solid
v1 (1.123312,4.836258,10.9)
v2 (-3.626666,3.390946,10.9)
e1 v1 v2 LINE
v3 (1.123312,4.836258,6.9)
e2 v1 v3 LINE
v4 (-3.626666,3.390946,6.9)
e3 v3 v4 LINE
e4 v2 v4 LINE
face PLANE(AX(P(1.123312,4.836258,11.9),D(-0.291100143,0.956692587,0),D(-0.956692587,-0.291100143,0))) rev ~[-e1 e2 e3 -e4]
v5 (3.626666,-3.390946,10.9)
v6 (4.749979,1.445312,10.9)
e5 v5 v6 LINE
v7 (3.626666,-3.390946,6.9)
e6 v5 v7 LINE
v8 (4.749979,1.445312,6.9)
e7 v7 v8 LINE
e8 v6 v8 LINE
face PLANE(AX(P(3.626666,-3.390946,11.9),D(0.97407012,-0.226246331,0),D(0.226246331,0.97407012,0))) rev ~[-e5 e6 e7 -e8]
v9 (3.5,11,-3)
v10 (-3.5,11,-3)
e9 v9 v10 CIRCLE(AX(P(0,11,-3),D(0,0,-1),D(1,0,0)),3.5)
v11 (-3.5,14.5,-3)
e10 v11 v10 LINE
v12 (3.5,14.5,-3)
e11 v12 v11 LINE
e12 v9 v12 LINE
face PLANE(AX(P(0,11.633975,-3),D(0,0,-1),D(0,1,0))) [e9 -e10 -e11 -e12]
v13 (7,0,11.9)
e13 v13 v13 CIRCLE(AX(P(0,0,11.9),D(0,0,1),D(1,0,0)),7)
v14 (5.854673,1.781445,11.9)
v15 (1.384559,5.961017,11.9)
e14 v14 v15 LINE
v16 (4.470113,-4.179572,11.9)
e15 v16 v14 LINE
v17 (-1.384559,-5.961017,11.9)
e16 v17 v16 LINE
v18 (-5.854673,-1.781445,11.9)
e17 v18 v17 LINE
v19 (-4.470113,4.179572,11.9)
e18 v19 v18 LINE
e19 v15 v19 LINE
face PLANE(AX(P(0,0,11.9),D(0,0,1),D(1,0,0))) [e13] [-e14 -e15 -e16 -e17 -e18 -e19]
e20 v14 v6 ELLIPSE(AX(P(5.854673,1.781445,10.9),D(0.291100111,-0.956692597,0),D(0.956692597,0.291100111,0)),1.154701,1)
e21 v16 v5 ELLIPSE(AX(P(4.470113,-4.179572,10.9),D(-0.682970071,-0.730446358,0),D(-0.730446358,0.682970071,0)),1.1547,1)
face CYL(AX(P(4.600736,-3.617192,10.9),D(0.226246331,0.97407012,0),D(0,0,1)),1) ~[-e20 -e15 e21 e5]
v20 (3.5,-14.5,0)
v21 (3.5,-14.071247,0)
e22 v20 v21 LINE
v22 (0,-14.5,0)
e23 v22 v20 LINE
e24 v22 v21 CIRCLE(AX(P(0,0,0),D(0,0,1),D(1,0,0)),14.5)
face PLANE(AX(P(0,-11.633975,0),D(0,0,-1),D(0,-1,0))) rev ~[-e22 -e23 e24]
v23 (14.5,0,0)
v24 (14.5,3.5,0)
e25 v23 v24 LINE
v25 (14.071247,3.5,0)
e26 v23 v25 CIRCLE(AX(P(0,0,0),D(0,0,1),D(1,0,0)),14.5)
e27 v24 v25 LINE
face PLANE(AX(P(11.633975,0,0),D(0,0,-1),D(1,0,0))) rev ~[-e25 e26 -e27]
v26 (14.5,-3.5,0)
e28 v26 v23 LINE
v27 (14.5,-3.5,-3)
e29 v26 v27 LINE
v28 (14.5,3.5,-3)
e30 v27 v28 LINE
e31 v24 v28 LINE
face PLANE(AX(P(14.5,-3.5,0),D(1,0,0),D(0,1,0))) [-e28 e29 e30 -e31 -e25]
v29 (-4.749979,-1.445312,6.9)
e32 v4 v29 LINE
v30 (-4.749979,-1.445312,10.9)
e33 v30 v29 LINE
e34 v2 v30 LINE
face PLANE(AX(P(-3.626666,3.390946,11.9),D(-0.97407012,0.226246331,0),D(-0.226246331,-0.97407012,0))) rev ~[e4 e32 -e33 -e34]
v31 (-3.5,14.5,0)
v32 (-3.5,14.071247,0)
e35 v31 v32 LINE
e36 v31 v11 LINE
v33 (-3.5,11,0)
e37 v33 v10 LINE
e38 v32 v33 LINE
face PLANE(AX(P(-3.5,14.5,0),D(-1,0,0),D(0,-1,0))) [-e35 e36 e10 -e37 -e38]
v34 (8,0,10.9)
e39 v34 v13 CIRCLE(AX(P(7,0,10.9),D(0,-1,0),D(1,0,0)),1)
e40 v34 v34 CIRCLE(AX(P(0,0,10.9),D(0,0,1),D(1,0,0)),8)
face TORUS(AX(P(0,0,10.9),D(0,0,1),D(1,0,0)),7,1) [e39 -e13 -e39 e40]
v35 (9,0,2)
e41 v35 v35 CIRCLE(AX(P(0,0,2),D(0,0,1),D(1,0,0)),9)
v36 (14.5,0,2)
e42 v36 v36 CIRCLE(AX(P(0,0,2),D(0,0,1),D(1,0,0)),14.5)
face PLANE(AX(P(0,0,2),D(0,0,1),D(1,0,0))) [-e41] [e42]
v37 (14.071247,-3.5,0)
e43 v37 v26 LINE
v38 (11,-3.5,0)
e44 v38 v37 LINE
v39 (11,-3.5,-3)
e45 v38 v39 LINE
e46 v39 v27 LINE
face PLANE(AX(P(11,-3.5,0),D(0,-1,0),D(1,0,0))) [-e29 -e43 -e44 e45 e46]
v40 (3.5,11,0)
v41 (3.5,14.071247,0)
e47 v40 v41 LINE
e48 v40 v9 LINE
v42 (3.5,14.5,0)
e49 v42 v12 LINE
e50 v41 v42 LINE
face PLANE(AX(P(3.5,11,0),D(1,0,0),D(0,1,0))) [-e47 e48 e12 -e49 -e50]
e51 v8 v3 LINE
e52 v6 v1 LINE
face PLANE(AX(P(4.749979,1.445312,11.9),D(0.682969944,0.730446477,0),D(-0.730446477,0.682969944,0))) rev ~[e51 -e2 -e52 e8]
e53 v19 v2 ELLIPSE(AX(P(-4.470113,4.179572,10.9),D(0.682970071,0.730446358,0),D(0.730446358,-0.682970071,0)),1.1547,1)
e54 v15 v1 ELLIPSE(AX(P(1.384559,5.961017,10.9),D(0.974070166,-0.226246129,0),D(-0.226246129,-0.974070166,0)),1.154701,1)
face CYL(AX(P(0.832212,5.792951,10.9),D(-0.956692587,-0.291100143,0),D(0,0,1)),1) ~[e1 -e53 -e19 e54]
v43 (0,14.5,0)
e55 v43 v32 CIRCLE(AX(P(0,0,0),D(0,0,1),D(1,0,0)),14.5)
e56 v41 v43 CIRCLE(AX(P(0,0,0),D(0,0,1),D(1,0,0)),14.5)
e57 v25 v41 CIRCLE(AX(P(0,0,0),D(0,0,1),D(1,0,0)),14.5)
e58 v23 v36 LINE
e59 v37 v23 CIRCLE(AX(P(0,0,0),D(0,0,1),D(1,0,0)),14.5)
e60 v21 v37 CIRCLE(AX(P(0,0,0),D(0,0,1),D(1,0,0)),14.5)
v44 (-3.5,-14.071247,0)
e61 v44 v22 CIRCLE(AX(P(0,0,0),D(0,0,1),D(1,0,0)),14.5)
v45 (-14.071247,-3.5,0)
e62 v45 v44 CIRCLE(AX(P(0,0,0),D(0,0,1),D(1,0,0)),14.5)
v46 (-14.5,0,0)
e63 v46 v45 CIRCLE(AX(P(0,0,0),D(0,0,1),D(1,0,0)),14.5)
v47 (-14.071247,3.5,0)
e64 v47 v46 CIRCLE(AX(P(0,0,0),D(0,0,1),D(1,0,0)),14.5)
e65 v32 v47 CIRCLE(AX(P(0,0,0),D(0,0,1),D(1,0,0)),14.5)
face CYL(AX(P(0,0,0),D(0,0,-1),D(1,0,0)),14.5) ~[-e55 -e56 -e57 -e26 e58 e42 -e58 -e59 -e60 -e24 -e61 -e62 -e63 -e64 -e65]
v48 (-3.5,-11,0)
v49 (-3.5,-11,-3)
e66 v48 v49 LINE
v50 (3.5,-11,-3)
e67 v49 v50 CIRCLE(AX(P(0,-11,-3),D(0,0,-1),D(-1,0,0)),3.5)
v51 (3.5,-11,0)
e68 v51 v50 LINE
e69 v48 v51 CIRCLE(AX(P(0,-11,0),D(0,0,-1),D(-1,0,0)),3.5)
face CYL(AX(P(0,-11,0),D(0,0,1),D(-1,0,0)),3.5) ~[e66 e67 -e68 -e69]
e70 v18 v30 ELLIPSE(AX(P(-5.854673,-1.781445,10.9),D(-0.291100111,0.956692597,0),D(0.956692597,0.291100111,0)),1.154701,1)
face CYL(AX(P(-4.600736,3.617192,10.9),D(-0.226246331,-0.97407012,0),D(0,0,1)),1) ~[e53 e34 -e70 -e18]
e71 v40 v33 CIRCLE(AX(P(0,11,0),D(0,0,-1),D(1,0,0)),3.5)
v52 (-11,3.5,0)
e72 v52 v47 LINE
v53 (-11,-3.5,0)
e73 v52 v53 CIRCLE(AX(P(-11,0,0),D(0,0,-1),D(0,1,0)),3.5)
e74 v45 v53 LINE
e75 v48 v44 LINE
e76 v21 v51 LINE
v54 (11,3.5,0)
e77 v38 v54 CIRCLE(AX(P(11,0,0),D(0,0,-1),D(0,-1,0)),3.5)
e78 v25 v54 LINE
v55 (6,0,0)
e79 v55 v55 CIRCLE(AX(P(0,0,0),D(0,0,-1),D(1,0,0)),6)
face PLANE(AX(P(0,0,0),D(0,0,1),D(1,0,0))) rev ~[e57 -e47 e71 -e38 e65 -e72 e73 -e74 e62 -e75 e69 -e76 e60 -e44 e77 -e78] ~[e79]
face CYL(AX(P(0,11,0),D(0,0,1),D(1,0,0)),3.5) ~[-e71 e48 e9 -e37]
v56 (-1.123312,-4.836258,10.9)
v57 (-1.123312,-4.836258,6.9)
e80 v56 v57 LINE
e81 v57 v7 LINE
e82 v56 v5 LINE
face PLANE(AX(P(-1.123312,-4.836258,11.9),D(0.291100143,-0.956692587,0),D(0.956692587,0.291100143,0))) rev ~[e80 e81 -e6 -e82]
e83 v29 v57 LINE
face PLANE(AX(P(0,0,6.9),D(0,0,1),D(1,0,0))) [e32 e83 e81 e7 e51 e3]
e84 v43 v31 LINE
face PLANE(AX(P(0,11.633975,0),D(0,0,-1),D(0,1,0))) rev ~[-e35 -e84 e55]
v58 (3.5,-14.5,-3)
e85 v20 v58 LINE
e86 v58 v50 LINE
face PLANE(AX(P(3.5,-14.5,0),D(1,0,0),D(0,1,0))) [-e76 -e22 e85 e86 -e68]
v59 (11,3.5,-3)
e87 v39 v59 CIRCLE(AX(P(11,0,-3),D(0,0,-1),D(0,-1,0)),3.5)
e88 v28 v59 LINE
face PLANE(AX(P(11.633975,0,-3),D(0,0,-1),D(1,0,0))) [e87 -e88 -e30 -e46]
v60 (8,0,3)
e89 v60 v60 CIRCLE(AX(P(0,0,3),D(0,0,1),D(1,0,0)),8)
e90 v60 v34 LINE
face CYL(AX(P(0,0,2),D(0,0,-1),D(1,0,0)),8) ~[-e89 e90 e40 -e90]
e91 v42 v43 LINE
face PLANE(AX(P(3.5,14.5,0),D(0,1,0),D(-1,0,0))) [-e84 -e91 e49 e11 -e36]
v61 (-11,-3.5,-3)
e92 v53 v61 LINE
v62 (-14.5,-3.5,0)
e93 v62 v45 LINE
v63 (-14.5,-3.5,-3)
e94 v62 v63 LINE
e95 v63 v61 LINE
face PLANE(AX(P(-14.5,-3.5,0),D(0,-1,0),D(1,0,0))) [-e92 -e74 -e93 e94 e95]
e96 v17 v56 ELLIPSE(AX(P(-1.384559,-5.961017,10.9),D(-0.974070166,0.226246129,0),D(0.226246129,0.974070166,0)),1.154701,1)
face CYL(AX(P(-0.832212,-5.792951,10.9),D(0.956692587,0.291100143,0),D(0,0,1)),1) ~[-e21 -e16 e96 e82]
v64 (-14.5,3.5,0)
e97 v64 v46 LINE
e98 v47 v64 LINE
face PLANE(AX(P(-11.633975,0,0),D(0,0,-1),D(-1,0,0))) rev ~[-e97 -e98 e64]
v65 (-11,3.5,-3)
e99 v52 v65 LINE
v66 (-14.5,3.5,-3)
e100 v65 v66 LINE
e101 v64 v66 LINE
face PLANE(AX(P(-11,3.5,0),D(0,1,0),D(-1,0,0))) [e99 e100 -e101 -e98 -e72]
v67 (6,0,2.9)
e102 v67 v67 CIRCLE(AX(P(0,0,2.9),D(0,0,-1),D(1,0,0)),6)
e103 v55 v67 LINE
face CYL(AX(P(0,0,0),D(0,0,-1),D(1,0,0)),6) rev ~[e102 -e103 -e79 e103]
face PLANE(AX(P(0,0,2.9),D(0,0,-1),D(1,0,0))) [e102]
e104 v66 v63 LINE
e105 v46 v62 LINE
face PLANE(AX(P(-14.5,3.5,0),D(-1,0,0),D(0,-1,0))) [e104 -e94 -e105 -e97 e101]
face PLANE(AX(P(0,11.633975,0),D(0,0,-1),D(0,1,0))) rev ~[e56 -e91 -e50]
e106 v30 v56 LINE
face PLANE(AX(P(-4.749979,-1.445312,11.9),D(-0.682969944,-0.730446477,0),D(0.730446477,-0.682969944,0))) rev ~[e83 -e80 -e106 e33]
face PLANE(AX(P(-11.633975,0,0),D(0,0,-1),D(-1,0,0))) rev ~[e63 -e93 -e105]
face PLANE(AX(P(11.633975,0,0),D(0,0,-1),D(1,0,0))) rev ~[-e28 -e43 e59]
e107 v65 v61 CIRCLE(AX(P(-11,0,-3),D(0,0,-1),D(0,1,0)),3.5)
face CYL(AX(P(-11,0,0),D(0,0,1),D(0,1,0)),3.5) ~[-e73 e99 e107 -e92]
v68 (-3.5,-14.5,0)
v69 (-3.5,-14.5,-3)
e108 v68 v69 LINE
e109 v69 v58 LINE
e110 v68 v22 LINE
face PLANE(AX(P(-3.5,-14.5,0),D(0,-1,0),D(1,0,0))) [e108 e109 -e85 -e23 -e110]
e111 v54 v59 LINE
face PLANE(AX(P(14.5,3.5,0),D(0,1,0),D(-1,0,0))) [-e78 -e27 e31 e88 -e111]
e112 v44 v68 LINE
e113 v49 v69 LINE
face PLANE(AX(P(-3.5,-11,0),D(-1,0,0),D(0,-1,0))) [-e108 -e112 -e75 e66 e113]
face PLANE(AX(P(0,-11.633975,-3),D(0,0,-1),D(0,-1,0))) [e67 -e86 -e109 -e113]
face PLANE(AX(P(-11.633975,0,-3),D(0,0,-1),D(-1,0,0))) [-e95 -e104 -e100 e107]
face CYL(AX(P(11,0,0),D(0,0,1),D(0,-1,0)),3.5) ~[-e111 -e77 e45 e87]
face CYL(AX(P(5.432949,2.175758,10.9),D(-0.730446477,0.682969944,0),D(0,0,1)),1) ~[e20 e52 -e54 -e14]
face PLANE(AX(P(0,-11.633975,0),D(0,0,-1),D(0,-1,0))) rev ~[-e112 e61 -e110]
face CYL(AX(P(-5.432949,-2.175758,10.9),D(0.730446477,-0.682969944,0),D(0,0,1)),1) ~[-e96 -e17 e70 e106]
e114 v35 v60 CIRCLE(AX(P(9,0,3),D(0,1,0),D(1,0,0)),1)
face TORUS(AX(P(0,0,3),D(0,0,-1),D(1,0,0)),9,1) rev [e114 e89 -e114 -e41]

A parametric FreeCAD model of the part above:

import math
import FreeCAD as App
import Part
import Sketcher

V = App.Vector
Q = App.Units.Quantity


def edges_at(feature, points):
    """Names of the edges that pass closest to the given points."""
    edges = feature.Shape.Edges
    near = lambda p: min(range(len(edges)), key=lambda i: edges[i].distToShape(Part.Vertex(*p))[0])
    return sorted({f"Edge{near(p) + 1}" for p in points})


def add_polygon(sketch, points):
    """Adds a closed chain of lines whose ends are joined by coincident constraints."""
    first, n = sketch.GeometryCount, len(points)
    for a, b in zip(points, points[1:] + points[:1]):
        sketch.addGeometry(Part.LineSegment(App.Vector(*a, 0), App.Vector(*b, 0)), False)
    for i in range(n):
        sketch.addConstraint(Sketcher.Constraint("Coincident", first + i, 2, first + (i + 1) % n, 1))

doc = App.newDocument("Part")
params = doc.addObject("Spreadsheet::Sheet", "Params")
for row, (alias, value) in enumerate([
    ("sketch1_diameter", "29 mm"),
    ("pad1_length", "2 mm"),
    ("sketch2_diameter", "16 mm"),
    ("pad2_length", "9.9 mm"),
    ("pocket1_length", "5 mm"),
    ("sketch4_radius", "3.5 mm"),
    ("sketch4_width", "3.5 mm"),
    ("pad3_length", "3 mm"),
    ("sketch5_diameter", "12 mm"),
    ("pocket2_length", "2.9 mm"),
    ("fillet_radius", "1 mm"),
    ("fillet2_radius", "1 mm"),
    ("fillet3_radius", "1 mm"),
], start=1):
    params.set(f"A{row}", alias)
    params.set(f"B{row}", "=" + value)
    params.setAlias(f"B{row}", alias)

body = doc.addObject("PartDesign::Body", "Body")

# Sketch on XY plane
sketch1 = body.newObject("Sketcher::SketchObject", "Sketch")
sketch1.AttachmentSupport = (doc.getObject("XY_Plane"), [""])
sketch1.MapMode = "FlatFace"
sketch1.addGeometry(Part.Circle(V(0, 0, 0), V(0, 0, 1), 14), False)
sketch1.addConstraint([
    Sketcher.Constraint("Coincident", 0, 3, -1, 1),
    Sketcher.Constraint("Diameter", 0, Q("29 mm")),
])
sketch1.setExpression("Constraints[1]", "Params.sketch1_diameter")
pad1 = body.newObject("PartDesign::Pad", "Pad")
pad1.Profile = sketch1
pad1.setExpression("Length", "Params.pad1_length")

# Sketch on XY plane
sketch2 = body.newObject("Sketcher::SketchObject", "Sketch001")
sketch2.AttachmentSupport = (doc.getObject("XY_Plane"), [""])
sketch2.MapMode = "FlatFace"
sketch2.AttachmentOffset = App.Placement(V(0, 0, 2), App.Rotation())
sketch2.addGeometry(Part.Circle(V(0, 0, 0), V(0, 0, 1), 8), False)
sketch2.addConstraint([
    Sketcher.Constraint("Coincident", 0, 3, -1, 1),
    Sketcher.Constraint("Diameter", 0, Q("16 mm")),
])
sketch2.setExpression("Constraints[1]", "Params.sketch2_diameter")
pad2 = body.newObject("PartDesign::Pad", "Pad001")
pad2.Profile = sketch2
pad2.setExpression("Length", "Params.pad2_length")

# Sketch on XY plane
sketch3 = body.newObject("Sketcher::SketchObject", "Sketch002")
sketch3.AttachmentSupport = (doc.getObject("XY_Plane"), [""])
sketch3.MapMode = "FlatFace"
sketch3.AttachmentOffset = App.Placement(V(0, 0, 11.9), App.Rotation())
add_polygon(sketch3, [(3.6, -3.4), (4.7, 1.4), (1.1, 4.8), (-3.6, 3.4), (-4.7, -1.4), (-1.1, -4.8)])  # lines 0-5
sketch3.addConstraint([
    Sketcher.Constraint("Symmetric", 0, 2, 3, 2, -1, 1),
    Sketcher.Constraint("Symmetric", 1, 2, 4, 2, -1, 1),
    Sketcher.Constraint("Symmetric", 2, 2, 5, 2, -1, 1),
    Sketcher.Constraint("Equal", 0, 1),
    Sketcher.Constraint("Equal", 1, 2),
    Sketcher.Constraint("Distance", 0, Q("4.965 mm")),
    Sketcher.Constraint("DistanceX", -1, 1, 0, 2, Q("4.749979 mm")),
    Sketcher.Constraint("DistanceY", -1, 1, 0, 2, Q("1.445312 mm")),
    Sketcher.Constraint("DistanceX", 2, 2, 1, 2, Q("4.749978 mm")),
])
pocket1 = body.newObject("PartDesign::Pocket", "Pocket")
pocket1.Profile = sketch3
pocket1.setExpression("Length", "Params.pocket1_length")

# Sketch on XY plane
sketch4 = body.newObject("Sketcher::SketchObject", "Sketch003")
sketch4.AttachmentSupport = (doc.getObject("XY_Plane"), [""])
sketch4.MapMode = "FlatFace"
sketch4.addGeometry([
    Part.ArcOfCircle(Part.Circle(V(11, 0, 0), V(0, 0, 1), 3.5), math.radians(90), math.radians(270)),
    Part.LineSegment(V(11, 3.5, 0), V(14.5, 3.5, 0)),
    Part.LineSegment(V(14.5, 3.5, 0), V(14.5, -3.5, 0)),
    Part.LineSegment(V(14.5, -3.5, 0), V(11, -3.5, 0)),
], False)
sketch4.addConstraint([
    Sketcher.Constraint("Tangent", 0, 1, 1, 1),
    Sketcher.Constraint("Coincident", 1, 2, 2, 1),
    Sketcher.Constraint("Coincident", 2, 2, 3, 1),
    Sketcher.Constraint("Tangent", 3, 2, 0, 2),
    Sketcher.Constraint("Horizontal", 1),
    Sketcher.Constraint("Vertical", 2),
    Sketcher.Constraint("Horizontal", 3),
    Sketcher.Constraint("PointOnObject", 0, 3, -1),
    Sketcher.Constraint("Radius", 0, Q("3.5 mm")),
    Sketcher.Constraint("DistanceX", 1, 1, 1, 2, Q("3.5 mm")),
    Sketcher.Constraint("DistanceX", -1, 1, 0, 3, Q("11 mm")),
])
sketch4.setExpression("Constraints[8]", "Params.sketch4_radius")
sketch4.setExpression("Constraints[9]", "Params.sketch4_width")
pad3 = body.newObject("PartDesign::Pad", "Pad002")
pad3.Profile = sketch4
pad3.setExpression("Length", "Params.pad3_length")
pad3.Reversed = True
doc.recompute()

polarpattern = body.newObject("PartDesign::PolarPattern", "PolarPattern")
polarpattern.Originals = [pad3]
polarpattern.Axis = (doc.getObject("Z_Axis"), [""])
polarpattern.Angle = 360
polarpattern.Occurrences = 4
body.Tip = polarpattern

# Sketch on XY plane
sketch5 = body.newObject("Sketcher::SketchObject", "Sketch004")
sketch5.AttachmentSupport = (doc.getObject("XY_Plane"), [""])
sketch5.MapMode = "FlatFace"
sketch5.addGeometry(Part.Circle(V(0, 0, 0), V(0, 0, 1), 6), False)
sketch5.addConstraint([
    Sketcher.Constraint("Coincident", 0, 3, -1, 1),
    Sketcher.Constraint("Diameter", 0, Q("12 mm")),
])
sketch5.setExpression("Constraints[1]", "Params.sketch5_diameter")
pocket2 = body.newObject("PartDesign::Pocket", "Pocket001")
pocket2.Profile = sketch5
pocket2.setExpression("Length", "Params.pocket2_length")
pocket2.Reversed = True
doc.recompute()

fillet = body.newObject("PartDesign::Fillet", "Fillet")
fillet.Base = (pocket2, edges_at(pocket2, [(-8, 0, 2)]))
fillet.setExpression("Radius", "Params.fillet_radius")
doc.recompute()

fillet2 = body.newObject("PartDesign::Fillet", "Fillet001")
fillet2.Base = (fillet, edges_at(fillet, [(-8, 0, 11.9)]))
fillet2.setExpression("Radius", "Params.fillet2_radius")
doc.recompute()

fillet3 = body.newObject("PartDesign::Fillet", "Fillet002")
fillet3.Base = (fillet2, edges_at(fillet2, [
    (4.188, -0.973, 11.9),
    (1.252, -4.114, 11.9),
    (-2.937, -3.141, 11.9),
    (-4.188, 0.973, 11.9),
    (-1.252, 4.114, 11.9),
    (2.937, 3.141, 11.9),
]))
fillet3.setExpression("Radius", "Params.fillet3_radius")

doc.recompute()
